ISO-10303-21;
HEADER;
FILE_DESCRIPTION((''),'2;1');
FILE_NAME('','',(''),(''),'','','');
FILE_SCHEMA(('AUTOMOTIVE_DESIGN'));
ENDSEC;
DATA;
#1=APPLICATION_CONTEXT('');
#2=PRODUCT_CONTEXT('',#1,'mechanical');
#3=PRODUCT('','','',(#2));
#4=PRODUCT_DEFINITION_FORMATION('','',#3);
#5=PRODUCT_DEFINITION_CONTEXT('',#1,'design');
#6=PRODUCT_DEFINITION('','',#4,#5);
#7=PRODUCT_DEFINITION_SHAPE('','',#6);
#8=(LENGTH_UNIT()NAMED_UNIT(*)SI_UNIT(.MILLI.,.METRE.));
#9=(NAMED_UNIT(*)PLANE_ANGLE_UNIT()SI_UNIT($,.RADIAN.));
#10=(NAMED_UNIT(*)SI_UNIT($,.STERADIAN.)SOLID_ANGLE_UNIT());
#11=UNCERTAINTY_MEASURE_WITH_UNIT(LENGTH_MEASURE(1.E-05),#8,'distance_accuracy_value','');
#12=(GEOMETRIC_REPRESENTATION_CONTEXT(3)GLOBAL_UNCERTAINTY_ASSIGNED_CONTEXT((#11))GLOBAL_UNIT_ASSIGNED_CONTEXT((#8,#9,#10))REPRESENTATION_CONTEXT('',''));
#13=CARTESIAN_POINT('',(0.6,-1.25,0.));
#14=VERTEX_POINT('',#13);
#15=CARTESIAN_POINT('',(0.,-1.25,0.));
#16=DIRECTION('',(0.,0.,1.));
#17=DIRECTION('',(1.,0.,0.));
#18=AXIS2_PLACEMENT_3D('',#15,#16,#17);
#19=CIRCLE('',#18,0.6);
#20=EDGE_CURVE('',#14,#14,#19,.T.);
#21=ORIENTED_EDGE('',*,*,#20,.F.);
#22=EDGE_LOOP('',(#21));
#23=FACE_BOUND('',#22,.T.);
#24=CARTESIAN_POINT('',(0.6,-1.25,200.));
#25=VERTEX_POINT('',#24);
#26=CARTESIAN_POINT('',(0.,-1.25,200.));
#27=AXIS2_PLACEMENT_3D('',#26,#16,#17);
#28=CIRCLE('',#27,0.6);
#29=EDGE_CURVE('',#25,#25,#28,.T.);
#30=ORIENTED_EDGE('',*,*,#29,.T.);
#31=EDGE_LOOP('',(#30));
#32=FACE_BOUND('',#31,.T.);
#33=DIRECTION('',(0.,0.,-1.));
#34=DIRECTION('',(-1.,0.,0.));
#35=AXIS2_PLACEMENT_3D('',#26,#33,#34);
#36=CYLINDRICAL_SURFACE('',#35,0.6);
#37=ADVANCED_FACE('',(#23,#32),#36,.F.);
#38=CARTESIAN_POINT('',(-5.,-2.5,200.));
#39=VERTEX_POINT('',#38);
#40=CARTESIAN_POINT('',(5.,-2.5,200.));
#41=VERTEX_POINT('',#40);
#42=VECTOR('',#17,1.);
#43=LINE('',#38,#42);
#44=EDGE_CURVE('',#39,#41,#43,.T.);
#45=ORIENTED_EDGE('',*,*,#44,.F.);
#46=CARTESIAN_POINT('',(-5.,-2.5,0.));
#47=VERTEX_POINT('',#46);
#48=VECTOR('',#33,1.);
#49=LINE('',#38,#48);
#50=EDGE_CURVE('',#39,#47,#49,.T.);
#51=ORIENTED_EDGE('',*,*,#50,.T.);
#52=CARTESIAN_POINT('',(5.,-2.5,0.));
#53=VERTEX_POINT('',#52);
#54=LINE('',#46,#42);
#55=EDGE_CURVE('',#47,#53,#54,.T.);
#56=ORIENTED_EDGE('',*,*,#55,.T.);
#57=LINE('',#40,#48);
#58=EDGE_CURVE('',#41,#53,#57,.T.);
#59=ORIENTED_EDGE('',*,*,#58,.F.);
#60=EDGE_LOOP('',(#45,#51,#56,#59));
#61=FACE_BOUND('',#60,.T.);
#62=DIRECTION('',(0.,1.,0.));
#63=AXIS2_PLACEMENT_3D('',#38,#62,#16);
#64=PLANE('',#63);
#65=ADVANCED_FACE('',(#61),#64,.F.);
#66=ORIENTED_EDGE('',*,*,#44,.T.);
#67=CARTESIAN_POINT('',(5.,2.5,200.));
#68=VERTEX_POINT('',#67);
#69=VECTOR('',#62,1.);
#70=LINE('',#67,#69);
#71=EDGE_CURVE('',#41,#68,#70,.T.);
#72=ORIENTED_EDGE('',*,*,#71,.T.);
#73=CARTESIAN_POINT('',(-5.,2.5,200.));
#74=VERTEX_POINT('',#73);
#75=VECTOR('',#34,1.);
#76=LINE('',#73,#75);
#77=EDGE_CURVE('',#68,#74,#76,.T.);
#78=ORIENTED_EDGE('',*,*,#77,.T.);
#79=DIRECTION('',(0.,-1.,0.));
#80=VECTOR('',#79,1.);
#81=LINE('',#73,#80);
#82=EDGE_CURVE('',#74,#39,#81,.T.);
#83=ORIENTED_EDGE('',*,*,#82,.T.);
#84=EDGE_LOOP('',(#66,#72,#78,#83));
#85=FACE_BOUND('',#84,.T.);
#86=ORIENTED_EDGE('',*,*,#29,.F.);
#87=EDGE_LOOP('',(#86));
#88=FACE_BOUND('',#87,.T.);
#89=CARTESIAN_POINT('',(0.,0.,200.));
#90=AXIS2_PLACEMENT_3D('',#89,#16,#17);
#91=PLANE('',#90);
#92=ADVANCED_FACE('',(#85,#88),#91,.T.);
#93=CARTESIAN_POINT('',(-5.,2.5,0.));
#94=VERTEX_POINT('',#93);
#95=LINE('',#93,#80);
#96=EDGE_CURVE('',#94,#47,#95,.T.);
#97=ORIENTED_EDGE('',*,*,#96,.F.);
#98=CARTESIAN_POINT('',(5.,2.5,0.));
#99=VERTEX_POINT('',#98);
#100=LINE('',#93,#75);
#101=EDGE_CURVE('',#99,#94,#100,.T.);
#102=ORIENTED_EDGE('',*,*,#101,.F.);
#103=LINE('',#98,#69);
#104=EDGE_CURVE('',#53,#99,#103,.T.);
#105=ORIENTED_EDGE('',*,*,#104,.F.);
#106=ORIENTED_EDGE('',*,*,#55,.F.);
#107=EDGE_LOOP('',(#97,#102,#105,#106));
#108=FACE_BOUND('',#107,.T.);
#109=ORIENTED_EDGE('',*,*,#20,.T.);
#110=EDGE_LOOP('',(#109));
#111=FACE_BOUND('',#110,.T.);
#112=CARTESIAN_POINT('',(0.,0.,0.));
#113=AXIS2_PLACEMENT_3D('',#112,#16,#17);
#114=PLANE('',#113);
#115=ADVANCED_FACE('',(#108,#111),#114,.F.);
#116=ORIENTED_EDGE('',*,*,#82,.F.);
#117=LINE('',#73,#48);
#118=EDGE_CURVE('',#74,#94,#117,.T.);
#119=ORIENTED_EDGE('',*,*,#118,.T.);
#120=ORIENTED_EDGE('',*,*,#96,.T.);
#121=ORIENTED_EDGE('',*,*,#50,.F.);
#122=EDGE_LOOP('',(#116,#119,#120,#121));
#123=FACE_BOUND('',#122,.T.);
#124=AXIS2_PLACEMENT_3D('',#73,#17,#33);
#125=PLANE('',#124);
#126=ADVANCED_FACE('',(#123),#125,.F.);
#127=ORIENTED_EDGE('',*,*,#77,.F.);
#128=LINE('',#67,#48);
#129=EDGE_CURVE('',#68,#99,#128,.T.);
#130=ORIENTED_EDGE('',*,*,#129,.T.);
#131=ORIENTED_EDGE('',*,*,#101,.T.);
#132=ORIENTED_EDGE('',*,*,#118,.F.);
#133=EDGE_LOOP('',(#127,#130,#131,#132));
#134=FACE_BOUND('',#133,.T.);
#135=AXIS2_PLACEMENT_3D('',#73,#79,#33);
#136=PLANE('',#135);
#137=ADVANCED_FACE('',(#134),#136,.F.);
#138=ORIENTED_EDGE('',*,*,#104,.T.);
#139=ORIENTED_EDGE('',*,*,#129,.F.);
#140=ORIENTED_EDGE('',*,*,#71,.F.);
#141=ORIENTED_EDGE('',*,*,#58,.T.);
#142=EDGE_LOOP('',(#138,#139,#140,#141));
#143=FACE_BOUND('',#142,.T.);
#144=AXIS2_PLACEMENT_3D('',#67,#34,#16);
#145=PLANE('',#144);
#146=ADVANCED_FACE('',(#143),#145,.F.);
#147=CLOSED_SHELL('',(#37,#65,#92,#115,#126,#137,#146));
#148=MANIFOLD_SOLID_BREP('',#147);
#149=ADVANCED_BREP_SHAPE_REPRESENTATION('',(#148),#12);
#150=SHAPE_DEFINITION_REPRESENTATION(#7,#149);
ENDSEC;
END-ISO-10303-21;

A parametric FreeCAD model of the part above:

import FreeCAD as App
import Part
import Sketcher
from FreeCAD import Vector

doc = App.newDocument("Part")
body = doc.addObject("PartDesign::Body", "Body")

# Sketch on XY plane
sketch1 = body.newObject("Sketcher::SketchObject", "Sketch")
sketch1.AttachmentSupport = (doc.getObject("XY_Plane"), [""])
sketch1.MapMode = "FlatFace"
sketch1.addGeometry(Part.LineSegment(Vector(-5, 2, 0), Vector(-5, -2, 0)), False)
sketch1.addGeometry(Part.LineSegment(Vector(-5, -2, 0), Vector(5, -2, 0)), False)
sketch1.addGeometry(Part.LineSegment(Vector(5, -2, 0), Vector(5, 2, 0)), False)
sketch1.addGeometry(Part.LineSegment(Vector(5, 2, 0), Vector(-5, 2, 0)), False)
sketch1.addConstraint(Sketcher.Constraint("Coincident", 0, 2, 1, 1))
sketch1.addConstraint(Sketcher.Constraint("Coincident", 1, 2, 2, 1))
sketch1.addConstraint(Sketcher.Constraint("Coincident", 2, 2, 3, 1))
sketch1.addConstraint(Sketcher.Constraint("Coincident", 3, 2, 0, 1))
sketch1.addConstraint(Sketcher.Constraint("Vertical", 0))
sketch1.addConstraint(Sketcher.Constraint("Horizontal", 1))
sketch1.addConstraint(Sketcher.Constraint("Vertical", 2))
sketch1.addConstraint(Sketcher.Constraint("Horizontal", 3))
sketch1.addConstraint(Sketcher.Constraint("Symmetric", 0, 2, 2, 2, -1, 1))
sketch1.addConstraint(Sketcher.Constraint("DistanceX", 1, 1, 1, 2, 10.0))
sketch1.addConstraint(Sketcher.Constraint("DistanceY", 0, 2, 0, 1, 5.0))
pad1 = body.newObject("PartDesign::Pad", "Pad")
pad1.Profile = sketch1
pad1.Length = 200

# Sketch on XY plane
sketch2 = body.newObject("Sketcher::SketchObject", "Sketch001")
sketch2.AttachmentSupport = (doc.getObject("XY_Plane"), [""])
sketch2.MapMode = "FlatFace"
sketch2.addGeometry(Part.Circle(Vector(0, -1.2, 0), Vector(0, 0, 1), 0.6), False)
sketch2.addConstraint(Sketcher.Constraint("PointOnObject", 0, 3, -2))
sketch2.addConstraint(Sketcher.Constraint("Diameter", 0, 1.2))
sketch2.addConstraint(Sketcher.Constraint("DistanceY", 0, 3, -1, 1, 1.25))
pocket1 = body.newObject("PartDesign::Pocket", "Pocket")
pocket1.Profile = sketch2
pocket1.Type = "ThroughAll"
pocket1.Reversed = True

doc.recompute()
